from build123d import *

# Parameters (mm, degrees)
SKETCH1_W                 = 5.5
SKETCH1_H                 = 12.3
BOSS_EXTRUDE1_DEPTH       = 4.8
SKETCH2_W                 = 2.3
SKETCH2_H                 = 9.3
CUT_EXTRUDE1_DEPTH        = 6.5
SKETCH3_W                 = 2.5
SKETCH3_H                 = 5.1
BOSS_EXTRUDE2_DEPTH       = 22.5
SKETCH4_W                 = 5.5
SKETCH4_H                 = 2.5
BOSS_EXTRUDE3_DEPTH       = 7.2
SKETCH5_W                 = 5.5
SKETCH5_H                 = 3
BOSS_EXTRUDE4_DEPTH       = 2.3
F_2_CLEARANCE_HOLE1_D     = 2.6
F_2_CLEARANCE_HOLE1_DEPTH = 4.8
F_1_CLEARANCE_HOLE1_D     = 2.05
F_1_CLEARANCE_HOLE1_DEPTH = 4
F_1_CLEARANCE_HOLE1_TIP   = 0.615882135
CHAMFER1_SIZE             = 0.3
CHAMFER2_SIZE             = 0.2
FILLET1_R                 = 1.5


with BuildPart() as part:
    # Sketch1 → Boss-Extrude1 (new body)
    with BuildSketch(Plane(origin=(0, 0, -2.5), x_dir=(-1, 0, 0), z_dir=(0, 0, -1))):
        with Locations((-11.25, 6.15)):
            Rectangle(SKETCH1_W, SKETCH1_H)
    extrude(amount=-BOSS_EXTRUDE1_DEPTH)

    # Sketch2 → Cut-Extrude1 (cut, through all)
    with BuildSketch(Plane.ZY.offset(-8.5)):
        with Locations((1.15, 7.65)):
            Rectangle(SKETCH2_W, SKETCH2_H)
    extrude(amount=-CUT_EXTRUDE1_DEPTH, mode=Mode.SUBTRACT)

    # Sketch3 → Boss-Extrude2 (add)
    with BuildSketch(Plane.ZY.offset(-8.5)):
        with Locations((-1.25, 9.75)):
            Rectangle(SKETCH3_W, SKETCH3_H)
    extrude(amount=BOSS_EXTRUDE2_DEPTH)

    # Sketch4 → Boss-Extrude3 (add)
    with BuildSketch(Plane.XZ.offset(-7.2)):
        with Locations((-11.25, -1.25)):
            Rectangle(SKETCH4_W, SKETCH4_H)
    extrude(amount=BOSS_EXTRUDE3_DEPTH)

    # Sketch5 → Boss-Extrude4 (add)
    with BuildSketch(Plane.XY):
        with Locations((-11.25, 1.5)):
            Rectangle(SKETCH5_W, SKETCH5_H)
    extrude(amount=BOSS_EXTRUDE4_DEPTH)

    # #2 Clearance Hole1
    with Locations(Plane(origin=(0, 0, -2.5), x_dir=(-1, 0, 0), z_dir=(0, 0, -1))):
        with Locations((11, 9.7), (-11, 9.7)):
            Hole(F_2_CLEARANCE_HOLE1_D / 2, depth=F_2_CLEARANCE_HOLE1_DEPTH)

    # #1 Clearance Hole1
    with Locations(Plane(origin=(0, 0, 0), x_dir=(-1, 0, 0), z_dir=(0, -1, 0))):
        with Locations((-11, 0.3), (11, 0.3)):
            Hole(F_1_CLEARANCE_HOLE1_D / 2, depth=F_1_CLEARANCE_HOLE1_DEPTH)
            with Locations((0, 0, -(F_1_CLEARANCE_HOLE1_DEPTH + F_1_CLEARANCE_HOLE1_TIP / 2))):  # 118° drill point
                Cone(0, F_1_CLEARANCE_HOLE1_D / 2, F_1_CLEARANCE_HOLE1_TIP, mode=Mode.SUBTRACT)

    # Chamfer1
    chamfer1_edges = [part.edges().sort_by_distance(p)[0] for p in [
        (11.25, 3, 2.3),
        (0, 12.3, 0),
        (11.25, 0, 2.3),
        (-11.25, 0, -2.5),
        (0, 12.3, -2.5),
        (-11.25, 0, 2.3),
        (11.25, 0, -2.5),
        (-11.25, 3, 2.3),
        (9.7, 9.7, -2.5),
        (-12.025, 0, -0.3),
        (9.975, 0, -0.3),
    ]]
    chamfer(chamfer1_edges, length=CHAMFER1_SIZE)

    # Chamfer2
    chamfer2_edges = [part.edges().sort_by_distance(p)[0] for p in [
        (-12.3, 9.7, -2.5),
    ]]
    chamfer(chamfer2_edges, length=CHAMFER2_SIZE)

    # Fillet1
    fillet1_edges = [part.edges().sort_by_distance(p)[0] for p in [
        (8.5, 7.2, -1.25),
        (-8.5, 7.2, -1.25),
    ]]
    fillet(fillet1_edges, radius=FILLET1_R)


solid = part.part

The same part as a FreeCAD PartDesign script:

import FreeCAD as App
import Part
import Sketcher
Q = App.Units.Quantity


def edges_at(feature, points):
    """Names of the edges that pass closest to the given points."""
    edges = feature.Shape.Edges
    near = lambda p: min(range(len(edges)), key=lambda i: edges[i].distToShape(Part.Vertex(*p))[0])
    return sorted({f"Edge{near(p) + 1}" for p in points})


def add_polygon(sketch, points):
    """Adds a closed chain of lines whose ends are joined by coincident constraints."""
    first, n = sketch.GeometryCount, len(points)
    for a, b in zip(points, points[1:] + points[:1]):
        sketch.addGeometry(Part.LineSegment(App.Vector(*a, 0), App.Vector(*b, 0)), False)
    for i in range(n):
        sketch.addConstraint(Sketcher.Constraint("Coincident", first + i, 2, first + (i + 1) % n, 1))

doc = App.newDocument("Part")
body = doc.addObject("PartDesign::Body", "Body")

# Sketch on XY plane
sketch1 = body.newObject("Sketcher::SketchObject", "Sketch")
sketch1.AttachmentSupport = (doc.getObject("XY_Plane"), [""])
sketch1.MapMode = "FlatFace"
sketch1.AttachmentOffset = App.Placement(App.Vector(0, 0, -2.5), App.Rotation())
add_polygon(sketch1, [(14, 12), (14, 0), (8, 0), (8, 12)])  # lines 0-3
sketch1.addConstraint(Sketcher.Constraint("Vertical", 0))
sketch1.addConstraint(Sketcher.Constraint("Horizontal", 1))
sketch1.addConstraint(Sketcher.Constraint("Vertical", 2))
sketch1.addConstraint(Sketcher.Constraint("Horizontal", 3))
sketch1.addConstraint(Sketcher.Constraint("PointOnObject", 0, 2, -1))
sketch1.addConstraint(Sketcher.Constraint("DistanceX", 1, 2, 1, 1, Q("5.5 mm")))
sketch1.addConstraint(Sketcher.Constraint("DistanceY", 0, 2, 0, 1, Q("12.3 mm")))
sketch1.addConstraint(Sketcher.Constraint("DistanceX", -1, 1, 0, 2, Q("14 mm")))
pad1 = body.newObject("PartDesign::Pad", "Pad")
pad1.Profile = sketch1
pad1.Length = 4.8

# Sketch on YZ plane
sketch2 = body.newObject("Sketcher::SketchObject", "Sketch001")
sketch2.AttachmentSupport = (doc.getObject("YZ_Plane"), [""])
sketch2.MapMode = "FlatFace"
sketch2.AttachmentOffset = App.Placement(App.Vector(0, 0, 8.5), App.Rotation())
add_polygon(sketch2, [(12.3, 0), (3, 0), (3, 2.3), (12.3, 2.3)])  # lines 0-3
sketch2.addConstraint(Sketcher.Constraint("Horizontal", 0))
sketch2.addConstraint(Sketcher.Constraint("Vertical", 1))
sketch2.addConstraint(Sketcher.Constraint("Horizontal", 2))
sketch2.addConstraint(Sketcher.Constraint("Vertical", 3))
sketch2.addConstraint(Sketcher.Constraint("PointOnObject", 0, 2, -1))
sketch2.addConstraint(Sketcher.Constraint("DistanceX", 0, 2, 0, 1, Q("9.3 mm")))
sketch2.addConstraint(Sketcher.Constraint("DistanceY", 1, 1, 1, 2, Q("2.3 mm")))
sketch2.addConstraint(Sketcher.Constraint("DistanceX", -1, 1, 0, 2, Q("3 mm")))
pocket1 = body.newObject("PartDesign::Pocket", "Pocket")
pocket1.Profile = sketch2
pocket1.Type = "ThroughAll"
pocket1.Reversed = True

# Sketch on YZ plane
sketch3 = body.newObject("Sketcher::SketchObject", "Sketch002")
sketch3.AttachmentSupport = (doc.getObject("YZ_Plane"), [""])
sketch3.MapMode = "FlatFace"
sketch3.AttachmentOffset = App.Placement(App.Vector(0, 0, 8.5), App.Rotation())
add_polygon(sketch3, [(12.3, -2.5), (7.2, -2.5), (7.2, 0), (12.3, 0)])  # lines 0-3
sketch3.addConstraint(Sketcher.Constraint("Horizontal", 0))
sketch3.addConstraint(Sketcher.Constraint("Vertical", 1))
sketch3.addConstraint(Sketcher.Constraint("Horizontal", 2))
sketch3.addConstraint(Sketcher.Constraint("Vertical", 3))
sketch3.addConstraint(Sketcher.Constraint("PointOnObject", 1, 2, -1))
sketch3.addConstraint(Sketcher.Constraint("DistanceX", 0, 2, 0, 1, Q("5.1 mm")))
sketch3.addConstraint(Sketcher.Constraint("DistanceY", 1, 1, 1, 2, Q("2.5 mm")))
sketch3.addConstraint(Sketcher.Constraint("DistanceX", -1, 1, 0, 2, Q("7.2 mm")))
pad2 = body.newObject("PartDesign::Pad", "Pad001")
pad2.Profile = sketch3
pad2.Length = 22.5
pad2.Reversed = True

# Sketch on XZ plane
sketch4 = body.newObject("Sketcher::SketchObject", "Sketch003")
sketch4.AttachmentSupport = (doc.getObject("XZ_Plane"), [""])
sketch4.MapMode = "FlatFace"
sketch4.AttachmentOffset = App.Placement(App.Vector(0, 0, -7.2), App.Rotation())
add_polygon(sketch4, [(-14, 0), (-14, -2.5), (-8.5, -2.5), (-8.5, 0)])  # lines 0-3
sketch4.addConstraint(Sketcher.Constraint("Vertical", 0))
sketch4.addConstraint(Sketcher.Constraint("Horizontal", 1))
sketch4.addConstraint(Sketcher.Constraint("Vertical", 2))
sketch4.addConstraint(Sketcher.Constraint("Horizontal", 3))
sketch4.addConstraint(Sketcher.Constraint("PointOnObject", 2, 2, -1))
sketch4.addConstraint(Sketcher.Constraint("DistanceX", 1, 1, 1, 2, Q("5.5 mm")))
sketch4.addConstraint(Sketcher.Constraint("DistanceY", 0, 2, 0, 1, Q("2.5 mm")))
sketch4.addConstraint(Sketcher.Constraint("DistanceX", 0, 2, -1, 1, Q("14 mm")))
pad3 = body.newObject("PartDesign::Pad", "Pad002")
pad3.Profile = sketch4
pad3.Length = 7.2

# Sketch on XY plane
sketch5 = body.newObject("Sketcher::SketchObject", "Sketch004")
sketch5.AttachmentSupport = (doc.getObject("XY_Plane"), [""])
sketch5.MapMode = "FlatFace"
add_polygon(sketch5, [(-14, 3), (-14, 0), (-8.5, 0), (-8.5, 3)])  # lines 0-3
sketch5.addConstraint(Sketcher.Constraint("Vertical", 0))
sketch5.addConstraint(Sketcher.Constraint("Horizontal", 1))
sketch5.addConstraint(Sketcher.Constraint("Vertical", 2))
sketch5.addConstraint(Sketcher.Constraint("Horizontal", 3))
sketch5.addConstraint(Sketcher.Constraint("PointOnObject", 0, 2, -1))
sketch5.addConstraint(Sketcher.Constraint("DistanceY", 0, 2, 0, 1, Q("3 mm")))
sketch5.addConstraint(Sketcher.Constraint("DistanceX", 1, 1, 1, 2, Q("5.5 mm")))
sketch5.addConstraint(Sketcher.Constraint("DistanceX", 0, 2, -1, 1, Q("14 mm")))
pad4 = body.newObject("PartDesign::Pad", "Pad003")
pad4.Profile = sketch5
pad4.Length = 2.3

# Sketch on XY plane
sketch6 = body.newObject("Sketcher::SketchObject", "Sketch005")
sketch6.AttachmentSupport = (doc.getObject("XY_Plane"), [""])
sketch6.MapMode = "FlatFace"
sketch6.AttachmentOffset = App.Placement(App.Vector(0, 0, -2.5), App.Rotation())
sketch6.addGeometry(Part.Circle(App.Vector(-11, 9.7, 0), App.Vector(0, 0, 1), 1.3), False)
sketch6.addGeometry(Part.Circle(App.Vector(11, 9.7, 0), App.Vector(0, 0, 1), 1.3), False)
sketch6.addConstraint(Sketcher.Constraint("Equal", 0, 1))
sketch6.addConstraint(Sketcher.Constraint("Symmetric", 0, 3, 1, 3, -2))
sketch6.addConstraint(Sketcher.Constraint("Diameter", 0, Q("2.6 mm")))
sketch6.addConstraint(Sketcher.Constraint("DistanceX", 0, 3, -1, 1, Q("11 mm")))
sketch6.addConstraint(Sketcher.Constraint("DistanceY", -1, 1, 0, 3, Q("9.7 mm")))
doc.recompute()
hole = body.newObject("PartDesign::Hole", "Hole")
hole.Profile = sketch6
hole.ThreadType = "None"
hole.Diameter = 2.6
hole.DepthType = "Dimension"
hole.Depth = 4.8
hole.DrillPoint = "Flat"
hole.Reversed = True

# Sketch on XZ plane
sketch7 = body.newObject("Sketcher::SketchObject", "Sketch006")
sketch7.AttachmentSupport = (doc.getObject("XZ_Plane"), [""])
sketch7.MapMode = "FlatFace"
sketch7.addGeometry(Part.Circle(App.Vector(11, -0.3, 0), App.Vector(0, 0, 1), 1), False)
sketch7.addGeometry(Part.Circle(App.Vector(-11, -0.3, 0), App.Vector(0, 0, 1), 1), False)
sketch7.addConstraint(Sketcher.Constraint("Equal", 0, 1))
sketch7.addConstraint(Sketcher.Constraint("Symmetric", 0, 3, 1, 3, -2))
sketch7.addConstraint(Sketcher.Constraint("Diameter", 0, Q("2.05 mm")))
sketch7.addConstraint(Sketcher.Constraint("DistanceX", -1, 1, 0, 3, Q("11 mm")))
sketch7.addConstraint(Sketcher.Constraint("DistanceY", 0, 3, -1, 1, Q("0.3 mm")))
doc.recompute()
hole2 = body.newObject("PartDesign::Hole", "Hole001")
hole2.Profile = sketch7
hole2.ThreadType = "None"
hole2.Diameter = 2.05
hole2.DepthType = "Dimension"
hole2.Depth = 4
hole2.DrillPoint = "Angled"
hole2.DrillPointAngle = 118
doc.recompute()

chamfer = body.newObject("PartDesign::Chamfer", "Chamfer")
chamfer.Base = (hole2, edges_at(hole2, [
    (11.25, 3, 2.3),
    (0, 12.3, 0),
    (11.25, 0, 2.3),
    (-11.25, 0, -2.5),
    (0, 12.3, -2.5),
    (-11.25, 0, 2.3),
    (11.25, 0, -2.5),
    (-11.25, 3, 2.3),
    (9.7, 9.7, -2.5),
    (-12.025, 0, -0.3),
    (9.975, 0, -0.3),
]))
chamfer.Size = 0.3
doc.recompute()

chamfer2 = body.newObject("PartDesign::Chamfer", "Chamfer001")
chamfer2.Base = (chamfer, edges_at(chamfer, [(-12.3, 9.7, -2.5)]))
chamfer2.Size = 0.2
doc.recompute()

fillet = body.newObject("PartDesign::Fillet", "Fillet")
fillet.Base = (chamfer2, edges_at(chamfer2, [(8.5, 7.2, -1.25), (-8.5, 7.2, -1.25)]))
fillet.Radius = 1.5

doc.recompute()
